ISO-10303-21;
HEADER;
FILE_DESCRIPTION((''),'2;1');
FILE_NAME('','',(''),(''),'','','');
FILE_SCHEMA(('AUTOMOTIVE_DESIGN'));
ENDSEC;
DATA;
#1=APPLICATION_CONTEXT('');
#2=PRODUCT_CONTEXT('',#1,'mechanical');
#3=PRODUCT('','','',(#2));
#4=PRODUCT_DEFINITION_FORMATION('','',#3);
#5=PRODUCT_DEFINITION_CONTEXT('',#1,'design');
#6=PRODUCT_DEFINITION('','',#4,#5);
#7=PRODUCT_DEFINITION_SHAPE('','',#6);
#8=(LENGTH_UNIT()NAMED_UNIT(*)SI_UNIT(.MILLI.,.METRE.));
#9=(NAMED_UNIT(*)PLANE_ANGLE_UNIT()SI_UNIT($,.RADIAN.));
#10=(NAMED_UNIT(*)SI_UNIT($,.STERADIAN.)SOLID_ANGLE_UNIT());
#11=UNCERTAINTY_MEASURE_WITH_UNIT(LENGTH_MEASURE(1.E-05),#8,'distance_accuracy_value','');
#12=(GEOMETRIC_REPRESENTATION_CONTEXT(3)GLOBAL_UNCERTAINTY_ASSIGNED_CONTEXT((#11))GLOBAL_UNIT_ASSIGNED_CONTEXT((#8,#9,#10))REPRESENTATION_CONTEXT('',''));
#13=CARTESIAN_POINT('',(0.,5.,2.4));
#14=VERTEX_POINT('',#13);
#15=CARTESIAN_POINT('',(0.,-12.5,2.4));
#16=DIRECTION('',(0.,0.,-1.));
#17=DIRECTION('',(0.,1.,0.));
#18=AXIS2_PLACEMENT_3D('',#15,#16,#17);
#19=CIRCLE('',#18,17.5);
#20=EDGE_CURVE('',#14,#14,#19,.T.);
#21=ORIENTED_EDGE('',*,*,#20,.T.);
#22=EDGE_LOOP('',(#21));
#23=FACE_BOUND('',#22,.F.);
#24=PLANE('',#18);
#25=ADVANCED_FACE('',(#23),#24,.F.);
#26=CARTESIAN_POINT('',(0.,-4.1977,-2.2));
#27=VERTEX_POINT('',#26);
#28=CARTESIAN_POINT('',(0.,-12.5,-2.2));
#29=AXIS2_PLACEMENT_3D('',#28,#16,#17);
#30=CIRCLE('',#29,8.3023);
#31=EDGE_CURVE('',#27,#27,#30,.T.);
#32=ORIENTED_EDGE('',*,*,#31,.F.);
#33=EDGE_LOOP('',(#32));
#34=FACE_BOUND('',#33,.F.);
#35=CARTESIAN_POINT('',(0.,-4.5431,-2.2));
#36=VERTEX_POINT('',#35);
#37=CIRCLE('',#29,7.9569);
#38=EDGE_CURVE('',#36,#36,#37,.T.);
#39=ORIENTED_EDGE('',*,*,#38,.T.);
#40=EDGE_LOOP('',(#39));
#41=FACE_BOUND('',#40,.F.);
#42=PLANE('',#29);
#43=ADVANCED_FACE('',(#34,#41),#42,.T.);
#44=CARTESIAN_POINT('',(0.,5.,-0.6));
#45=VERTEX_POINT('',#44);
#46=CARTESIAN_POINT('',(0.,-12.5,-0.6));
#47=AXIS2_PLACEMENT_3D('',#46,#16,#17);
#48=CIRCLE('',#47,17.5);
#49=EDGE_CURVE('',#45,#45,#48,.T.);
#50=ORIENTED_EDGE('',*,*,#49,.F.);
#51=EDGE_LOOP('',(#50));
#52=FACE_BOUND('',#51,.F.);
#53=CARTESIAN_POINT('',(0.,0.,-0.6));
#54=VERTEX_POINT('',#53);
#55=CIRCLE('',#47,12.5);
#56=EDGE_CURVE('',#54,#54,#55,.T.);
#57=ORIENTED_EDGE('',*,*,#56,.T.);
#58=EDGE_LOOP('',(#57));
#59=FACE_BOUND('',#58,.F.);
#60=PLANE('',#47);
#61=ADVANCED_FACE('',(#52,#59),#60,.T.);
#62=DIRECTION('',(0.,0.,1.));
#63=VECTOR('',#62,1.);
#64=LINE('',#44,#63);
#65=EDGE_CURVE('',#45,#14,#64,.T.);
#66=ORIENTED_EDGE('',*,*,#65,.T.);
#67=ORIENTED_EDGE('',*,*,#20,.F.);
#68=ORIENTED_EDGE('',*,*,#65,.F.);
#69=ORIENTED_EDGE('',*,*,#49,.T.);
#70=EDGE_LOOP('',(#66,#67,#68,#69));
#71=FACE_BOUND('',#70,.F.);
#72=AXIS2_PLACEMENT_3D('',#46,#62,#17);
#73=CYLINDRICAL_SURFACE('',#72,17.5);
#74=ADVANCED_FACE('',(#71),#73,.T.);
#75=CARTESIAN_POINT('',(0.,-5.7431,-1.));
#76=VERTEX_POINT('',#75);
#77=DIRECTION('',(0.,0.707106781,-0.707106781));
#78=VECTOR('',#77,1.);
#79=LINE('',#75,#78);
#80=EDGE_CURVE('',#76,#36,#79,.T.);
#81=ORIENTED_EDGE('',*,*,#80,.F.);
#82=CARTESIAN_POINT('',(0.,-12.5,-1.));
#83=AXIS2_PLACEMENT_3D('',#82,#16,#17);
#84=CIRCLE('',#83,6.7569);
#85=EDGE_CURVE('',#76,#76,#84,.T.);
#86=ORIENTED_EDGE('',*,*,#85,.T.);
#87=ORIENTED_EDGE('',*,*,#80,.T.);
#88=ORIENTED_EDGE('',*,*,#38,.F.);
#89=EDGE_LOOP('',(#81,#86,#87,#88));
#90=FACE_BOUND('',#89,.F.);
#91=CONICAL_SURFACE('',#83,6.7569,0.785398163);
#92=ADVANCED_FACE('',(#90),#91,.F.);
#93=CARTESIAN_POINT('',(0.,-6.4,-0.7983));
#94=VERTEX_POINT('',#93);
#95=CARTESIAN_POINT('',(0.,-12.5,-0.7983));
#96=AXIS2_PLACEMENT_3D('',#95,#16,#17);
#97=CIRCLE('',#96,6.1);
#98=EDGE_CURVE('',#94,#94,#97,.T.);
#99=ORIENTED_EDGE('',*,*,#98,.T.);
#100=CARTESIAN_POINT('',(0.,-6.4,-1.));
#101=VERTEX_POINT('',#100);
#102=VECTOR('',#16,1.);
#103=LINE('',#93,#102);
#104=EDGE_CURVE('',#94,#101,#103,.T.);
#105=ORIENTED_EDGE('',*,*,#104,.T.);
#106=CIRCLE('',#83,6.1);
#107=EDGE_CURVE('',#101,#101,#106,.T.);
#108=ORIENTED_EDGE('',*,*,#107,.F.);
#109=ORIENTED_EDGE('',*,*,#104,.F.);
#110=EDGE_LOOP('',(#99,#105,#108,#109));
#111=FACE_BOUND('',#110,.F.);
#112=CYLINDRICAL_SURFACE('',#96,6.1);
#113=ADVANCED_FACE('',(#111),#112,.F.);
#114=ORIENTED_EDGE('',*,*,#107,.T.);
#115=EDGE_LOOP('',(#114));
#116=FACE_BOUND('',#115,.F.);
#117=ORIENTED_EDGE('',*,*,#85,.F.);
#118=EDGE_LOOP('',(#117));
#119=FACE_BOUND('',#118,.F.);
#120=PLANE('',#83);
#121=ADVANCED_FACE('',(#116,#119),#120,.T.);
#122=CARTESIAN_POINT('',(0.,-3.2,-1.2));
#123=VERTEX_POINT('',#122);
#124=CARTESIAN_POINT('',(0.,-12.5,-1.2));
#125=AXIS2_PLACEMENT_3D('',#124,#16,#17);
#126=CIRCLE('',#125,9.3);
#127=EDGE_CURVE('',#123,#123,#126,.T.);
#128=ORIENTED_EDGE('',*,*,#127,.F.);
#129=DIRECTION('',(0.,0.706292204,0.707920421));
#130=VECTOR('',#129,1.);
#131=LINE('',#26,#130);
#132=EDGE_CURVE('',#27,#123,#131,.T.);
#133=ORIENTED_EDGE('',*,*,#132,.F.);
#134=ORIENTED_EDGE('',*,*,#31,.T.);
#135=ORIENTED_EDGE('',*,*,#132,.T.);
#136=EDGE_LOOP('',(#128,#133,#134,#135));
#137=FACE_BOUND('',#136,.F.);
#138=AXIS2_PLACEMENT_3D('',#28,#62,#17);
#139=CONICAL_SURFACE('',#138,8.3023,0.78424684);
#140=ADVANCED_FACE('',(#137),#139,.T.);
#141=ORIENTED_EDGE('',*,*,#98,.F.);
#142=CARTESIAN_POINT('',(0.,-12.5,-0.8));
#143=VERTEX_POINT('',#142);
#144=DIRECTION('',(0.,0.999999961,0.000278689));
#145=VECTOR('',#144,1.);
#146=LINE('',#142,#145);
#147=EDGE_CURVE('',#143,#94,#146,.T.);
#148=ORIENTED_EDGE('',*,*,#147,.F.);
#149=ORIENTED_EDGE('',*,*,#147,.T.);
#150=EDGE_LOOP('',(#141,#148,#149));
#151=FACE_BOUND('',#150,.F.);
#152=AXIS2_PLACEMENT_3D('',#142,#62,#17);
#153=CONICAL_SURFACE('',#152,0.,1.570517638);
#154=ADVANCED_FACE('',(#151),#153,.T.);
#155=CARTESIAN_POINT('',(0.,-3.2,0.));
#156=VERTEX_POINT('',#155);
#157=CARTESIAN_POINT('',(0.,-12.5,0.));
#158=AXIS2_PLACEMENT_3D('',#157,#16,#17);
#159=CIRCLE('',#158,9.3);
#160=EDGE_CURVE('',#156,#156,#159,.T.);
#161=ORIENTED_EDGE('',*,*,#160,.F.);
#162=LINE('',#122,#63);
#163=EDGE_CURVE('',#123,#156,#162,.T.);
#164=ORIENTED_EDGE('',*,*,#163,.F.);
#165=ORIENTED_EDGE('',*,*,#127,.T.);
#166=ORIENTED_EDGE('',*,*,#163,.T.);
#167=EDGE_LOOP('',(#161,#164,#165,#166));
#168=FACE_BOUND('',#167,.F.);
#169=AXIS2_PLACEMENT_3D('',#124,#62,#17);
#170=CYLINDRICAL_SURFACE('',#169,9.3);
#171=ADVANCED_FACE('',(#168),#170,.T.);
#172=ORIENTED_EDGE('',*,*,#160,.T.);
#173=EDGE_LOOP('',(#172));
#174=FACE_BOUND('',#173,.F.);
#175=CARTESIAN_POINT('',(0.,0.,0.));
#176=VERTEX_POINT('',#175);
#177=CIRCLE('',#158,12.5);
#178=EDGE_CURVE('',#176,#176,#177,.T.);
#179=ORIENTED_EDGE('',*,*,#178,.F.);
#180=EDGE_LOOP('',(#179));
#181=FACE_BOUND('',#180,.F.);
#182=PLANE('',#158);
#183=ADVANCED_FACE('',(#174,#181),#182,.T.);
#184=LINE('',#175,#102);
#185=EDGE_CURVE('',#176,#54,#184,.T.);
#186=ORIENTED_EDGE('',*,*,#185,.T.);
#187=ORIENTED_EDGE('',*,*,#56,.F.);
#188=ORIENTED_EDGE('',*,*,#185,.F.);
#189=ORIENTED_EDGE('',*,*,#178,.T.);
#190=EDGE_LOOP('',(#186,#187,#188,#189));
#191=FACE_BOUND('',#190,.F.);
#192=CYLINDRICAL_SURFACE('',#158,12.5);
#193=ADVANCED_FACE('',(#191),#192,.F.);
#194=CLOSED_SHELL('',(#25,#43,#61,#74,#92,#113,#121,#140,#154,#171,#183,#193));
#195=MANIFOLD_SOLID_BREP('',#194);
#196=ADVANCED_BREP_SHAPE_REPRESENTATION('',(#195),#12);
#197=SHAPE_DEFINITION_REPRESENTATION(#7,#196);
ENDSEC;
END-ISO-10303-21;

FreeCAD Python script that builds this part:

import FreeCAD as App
import Part
import Sketcher
from FreeCAD import Vector
Q = App.Units.Quantity

doc = App.newDocument("Part")
body = doc.addObject("PartDesign::Body", "Body")

# Sketch on YZ plane
sketch1 = body.newObject("Sketcher::SketchObject", "Sketch")
sketch1.AttachmentSupport = (doc.getObject("YZ_Plane"), [""])
sketch1.MapMode = "FlatFace"
sketch1.addGeometry([
    Part.LineSegment(Vector(5, 2.4, 0), Vector(-12.5, 2.4, 0)),  # 0
    Part.LineSegment(Vector(-12.5, 2.4, 0), Vector(-12.5, -0.8, 0)),  # 1
    Part.LineSegment(Vector(-12.5, -0.8, 0), Vector(-6.4, -0.7983, 0)),  # 2
    Part.LineSegment(Vector(-6.4, -0.7983, 0), Vector(-6.4, -1, 0)),  # 3
    Part.LineSegment(Vector(-6.4, -1, 0), Vector(-5.7431, -1, 0)),  # 4
    Part.LineSegment(Vector(-5.7431, -1, 0), Vector(-4.5431, -2.2, 0)),  # 5
    Part.LineSegment(Vector(-4.5431, -2.2, 0), Vector(-4.1977, -2.2, 0)),  # 6
    Part.LineSegment(Vector(-4.1977, -2.2, 0), Vector(-3.2, -1.2, 0)),  # 7
    Part.LineSegment(Vector(-3.2, -1.2, 0), Vector(-3.2, 0, 0)),  # 8
    Part.LineSegment(Vector(-3.2, 0, 0), Vector(0, 0, 0)),  # 9
    Part.LineSegment(Vector(0, 0, 0), Vector(0, -0.6, 0)),  # 10
    Part.LineSegment(Vector(0, -0.6, 0), Vector(5, -0.6, 0)),  # 11
    Part.LineSegment(Vector(5, -0.6, 0), Vector(5, 2.4, 0)),  # 12
], False)
sketch1.addGeometry(Part.LineSegment(Vector(-12.5, 2.4, 0), Vector(-12.5, -2.2, 0)), True)  # axis
sketch1.addConstraint([
    Sketcher.Constraint("Coincident", 0, 2, 1, 1),
    Sketcher.Constraint("Coincident", 1, 2, 2, 1),
    Sketcher.Constraint("Coincident", 2, 2, 3, 1),
    Sketcher.Constraint("Coincident", 3, 2, 4, 1),
    Sketcher.Constraint("Coincident", 4, 2, 5, 1),
    Sketcher.Constraint("Coincident", 5, 2, 6, 1),
    Sketcher.Constraint("Coincident", 6, 2, 7, 1),
    Sketcher.Constraint("Coincident", 7, 2, 8, 1),
    Sketcher.Constraint("Coincident", 8, 2, 9, 1),
    Sketcher.Constraint("Coincident", 9, 2, 10, 1),
    Sketcher.Constraint("Coincident", 10, 2, 11, 1),
    Sketcher.Constraint("Coincident", 11, 2, 12, 1),
    Sketcher.Constraint("Coincident", 12, 2, 0, 1),
    Sketcher.Constraint("Horizontal", 0),
    Sketcher.Constraint("Vertical", 1),
    Sketcher.Constraint("Vertical", 3),
    Sketcher.Constraint("Horizontal", 4),
    Sketcher.Constraint("Horizontal", 6),
    Sketcher.Constraint("Vertical", 8),
    Sketcher.Constraint("Horizontal", 9),
    Sketcher.Constraint("Vertical", 10),
    Sketcher.Constraint("Horizontal", 11),
    Sketcher.Constraint("Vertical", 12),
    Sketcher.Constraint("Vertical", 13),
    Sketcher.Constraint("Coincident", 9, 2, -1, 1),
    Sketcher.Constraint("Coincident", 13, 1, 0, 2),
    Sketcher.Constraint("Horizontal", 6, 2, 13, 2),
    Sketcher.Constraint("Equal", 9, 1),
    Sketcher.Constraint("DistanceX", 11, 1, 11, 2, Q("5 mm")),
    Sketcher.Constraint("DistanceY", 12, 1, 12, 2, Q("3 mm")),
    Sketcher.Constraint("Distance", 2, Q("6.1 mm")),
    Sketcher.Constraint("DistanceY", 3, 2, 1, 2, Q("0.2 mm")),
    Sketcher.Constraint("DistanceY", 7, 2, 4, 2, Q("0.2 mm")),
    Sketcher.Constraint("Angle", 5, Q("-45 deg")),
    Sketcher.Constraint("DistanceX", 0, 2, 0, 1, Q("17.5 mm")),
    Sketcher.Constraint("DistanceX", 9, 1, 9, 2, Q("3.2 mm")),
    Sketcher.Constraint("DistanceY", 8, 1, 8, 2, Q("1.2 mm")),
    Sketcher.Constraint("DistanceY", 13, 2, 13, 1, Q("4.6 mm")),
    Sketcher.Constraint("DistanceX", 4, 1, 4, 2, Q("0.657 mm")),
    Sketcher.Constraint("DistanceX", 6, 1, 6, 2, Q("0.3454 mm")),
    Sketcher.Constraint("DistanceY", 3, 2, 3, 1, Q("0.2017 mm")),
])
revolution = body.newObject("PartDesign::Revolution", "Revolution")
revolution.Profile = sketch1
revolution.ReferenceAxis = (sketch1, ["Axis0"])
revolution.Angle = 360

doc.recompute()
